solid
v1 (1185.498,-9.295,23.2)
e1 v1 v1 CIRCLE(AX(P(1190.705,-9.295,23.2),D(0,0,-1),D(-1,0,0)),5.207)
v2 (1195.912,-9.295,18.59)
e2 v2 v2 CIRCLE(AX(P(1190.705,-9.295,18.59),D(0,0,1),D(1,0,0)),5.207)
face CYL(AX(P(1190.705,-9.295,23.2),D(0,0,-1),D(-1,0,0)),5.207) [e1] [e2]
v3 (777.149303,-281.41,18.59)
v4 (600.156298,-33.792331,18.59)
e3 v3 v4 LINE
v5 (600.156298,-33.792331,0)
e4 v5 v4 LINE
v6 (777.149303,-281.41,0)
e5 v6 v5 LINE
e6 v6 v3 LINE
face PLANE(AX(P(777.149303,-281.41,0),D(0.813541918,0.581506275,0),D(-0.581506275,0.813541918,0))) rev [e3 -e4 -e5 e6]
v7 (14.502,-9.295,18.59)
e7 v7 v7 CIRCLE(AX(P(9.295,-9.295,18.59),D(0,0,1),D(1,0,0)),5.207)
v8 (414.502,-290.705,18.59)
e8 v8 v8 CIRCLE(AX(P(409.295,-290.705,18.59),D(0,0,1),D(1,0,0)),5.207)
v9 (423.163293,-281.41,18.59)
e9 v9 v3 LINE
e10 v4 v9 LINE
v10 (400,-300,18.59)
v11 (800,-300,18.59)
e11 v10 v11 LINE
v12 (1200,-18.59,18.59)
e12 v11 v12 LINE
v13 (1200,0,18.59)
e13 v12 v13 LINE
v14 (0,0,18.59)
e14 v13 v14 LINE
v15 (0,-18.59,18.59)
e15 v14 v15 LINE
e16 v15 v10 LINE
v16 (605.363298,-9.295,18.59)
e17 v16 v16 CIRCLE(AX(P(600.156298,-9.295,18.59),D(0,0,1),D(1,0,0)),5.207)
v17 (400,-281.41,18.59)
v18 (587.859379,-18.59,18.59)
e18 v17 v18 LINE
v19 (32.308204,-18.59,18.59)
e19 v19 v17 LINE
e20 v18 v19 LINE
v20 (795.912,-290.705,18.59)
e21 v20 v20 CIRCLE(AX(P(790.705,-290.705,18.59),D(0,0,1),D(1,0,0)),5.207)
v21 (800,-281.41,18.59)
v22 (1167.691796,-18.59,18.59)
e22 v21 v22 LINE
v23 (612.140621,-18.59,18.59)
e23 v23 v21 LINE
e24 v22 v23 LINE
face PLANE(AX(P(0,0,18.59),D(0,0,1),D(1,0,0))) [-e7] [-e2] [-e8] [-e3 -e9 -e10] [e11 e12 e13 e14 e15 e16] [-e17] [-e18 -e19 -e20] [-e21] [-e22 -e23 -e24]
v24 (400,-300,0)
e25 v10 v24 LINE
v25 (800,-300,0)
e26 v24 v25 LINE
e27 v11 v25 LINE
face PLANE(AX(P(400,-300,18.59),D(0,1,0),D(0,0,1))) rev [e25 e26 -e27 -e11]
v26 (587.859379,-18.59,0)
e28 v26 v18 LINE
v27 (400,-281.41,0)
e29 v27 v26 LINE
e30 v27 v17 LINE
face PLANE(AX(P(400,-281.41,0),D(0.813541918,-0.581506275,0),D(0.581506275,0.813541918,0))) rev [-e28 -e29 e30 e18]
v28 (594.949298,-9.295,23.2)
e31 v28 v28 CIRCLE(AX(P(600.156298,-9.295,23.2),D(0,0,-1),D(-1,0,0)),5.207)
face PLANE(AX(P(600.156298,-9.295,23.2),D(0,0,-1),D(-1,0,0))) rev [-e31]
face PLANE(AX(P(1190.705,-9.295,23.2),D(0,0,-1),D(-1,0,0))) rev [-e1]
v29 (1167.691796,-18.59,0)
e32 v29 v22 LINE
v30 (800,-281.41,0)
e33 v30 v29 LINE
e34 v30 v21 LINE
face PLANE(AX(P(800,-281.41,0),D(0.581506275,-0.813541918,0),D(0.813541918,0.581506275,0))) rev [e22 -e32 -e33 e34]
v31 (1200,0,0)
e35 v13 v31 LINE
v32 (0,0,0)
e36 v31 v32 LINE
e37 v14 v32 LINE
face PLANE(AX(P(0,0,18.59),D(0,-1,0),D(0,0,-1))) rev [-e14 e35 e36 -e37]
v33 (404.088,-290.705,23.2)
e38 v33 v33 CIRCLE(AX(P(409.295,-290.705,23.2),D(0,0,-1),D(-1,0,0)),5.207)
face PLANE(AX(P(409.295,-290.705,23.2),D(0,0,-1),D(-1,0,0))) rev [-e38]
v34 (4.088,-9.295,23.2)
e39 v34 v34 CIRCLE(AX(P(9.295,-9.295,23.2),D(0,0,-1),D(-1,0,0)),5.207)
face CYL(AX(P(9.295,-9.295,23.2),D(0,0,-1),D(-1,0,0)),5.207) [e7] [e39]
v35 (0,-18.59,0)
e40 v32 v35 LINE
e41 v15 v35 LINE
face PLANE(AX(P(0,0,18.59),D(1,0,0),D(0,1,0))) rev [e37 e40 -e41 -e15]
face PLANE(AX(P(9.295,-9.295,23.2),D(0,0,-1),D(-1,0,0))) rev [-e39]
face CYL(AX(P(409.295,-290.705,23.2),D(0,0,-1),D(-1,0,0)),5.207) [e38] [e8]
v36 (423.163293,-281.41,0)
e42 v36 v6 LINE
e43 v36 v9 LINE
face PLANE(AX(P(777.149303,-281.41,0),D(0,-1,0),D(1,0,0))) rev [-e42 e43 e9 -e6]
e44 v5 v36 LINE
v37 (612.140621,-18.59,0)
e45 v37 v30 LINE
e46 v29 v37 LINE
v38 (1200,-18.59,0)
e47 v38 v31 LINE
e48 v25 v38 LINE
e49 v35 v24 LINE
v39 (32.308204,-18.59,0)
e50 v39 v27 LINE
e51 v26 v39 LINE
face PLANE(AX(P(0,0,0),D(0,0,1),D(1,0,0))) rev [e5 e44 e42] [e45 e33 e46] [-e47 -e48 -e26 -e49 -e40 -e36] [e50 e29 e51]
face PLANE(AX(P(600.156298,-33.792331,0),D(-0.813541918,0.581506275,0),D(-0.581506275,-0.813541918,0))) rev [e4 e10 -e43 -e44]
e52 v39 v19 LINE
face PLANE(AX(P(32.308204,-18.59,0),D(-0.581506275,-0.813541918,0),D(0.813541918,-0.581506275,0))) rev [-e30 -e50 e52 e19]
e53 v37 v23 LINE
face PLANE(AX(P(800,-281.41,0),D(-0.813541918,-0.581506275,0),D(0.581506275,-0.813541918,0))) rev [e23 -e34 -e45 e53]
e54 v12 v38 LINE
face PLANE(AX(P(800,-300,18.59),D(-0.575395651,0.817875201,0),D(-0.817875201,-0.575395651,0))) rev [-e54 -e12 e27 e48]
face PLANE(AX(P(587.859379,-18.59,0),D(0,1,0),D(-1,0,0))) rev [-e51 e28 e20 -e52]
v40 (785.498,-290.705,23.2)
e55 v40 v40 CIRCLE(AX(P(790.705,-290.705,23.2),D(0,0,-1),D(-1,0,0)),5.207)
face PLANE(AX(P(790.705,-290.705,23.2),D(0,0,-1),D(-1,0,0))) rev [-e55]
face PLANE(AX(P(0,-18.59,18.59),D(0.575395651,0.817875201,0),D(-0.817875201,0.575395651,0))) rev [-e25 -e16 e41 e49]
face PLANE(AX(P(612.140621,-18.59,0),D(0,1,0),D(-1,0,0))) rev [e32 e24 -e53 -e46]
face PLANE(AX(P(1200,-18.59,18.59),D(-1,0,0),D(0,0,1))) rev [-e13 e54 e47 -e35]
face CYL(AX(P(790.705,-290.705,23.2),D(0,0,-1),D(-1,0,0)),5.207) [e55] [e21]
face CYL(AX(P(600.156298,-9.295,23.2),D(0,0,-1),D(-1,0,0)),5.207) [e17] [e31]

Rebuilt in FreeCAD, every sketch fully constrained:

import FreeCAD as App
import Part
import Sketcher
from FreeCAD import Vector
Q = App.Units.Quantity

doc = App.newDocument("Part")
body = doc.addObject("PartDesign::Body", "Body")

sketch1 = body.newObject("Sketcher::SketchObject", "Sketch")
sketch1.AttachmentSupport = (doc.getObject("XY_Plane"), [""])
sketch1.MapMode = "FlatFace"
sketch1.addGeometry([
    Part.LineSegment(Vector(1200, 0, 0), Vector(0, 0, 0)),
    Part.LineSegment(Vector(0, 0, 0), Vector(0, -19, 0)),
    Part.LineSegment(Vector(0, -19, 0), Vector(400, -300, 0)),
    Part.LineSegment(Vector(400, -300, 0), Vector(800, -300, 0)),
    Part.LineSegment(Vector(800, -300, 0), Vector(1200, -19, 0)),
    Part.LineSegment(Vector(1200, -19, 0), Vector(1200, 0, 0)),
], False)
sketch1.addConstraint([
    Sketcher.Constraint("Coincident", 0, 2, 1, 1),
    Sketcher.Constraint("Coincident", 1, 2, 2, 1),
    Sketcher.Constraint("Coincident", 2, 2, 3, 1),
    Sketcher.Constraint("Coincident", 3, 2, 4, 1),
    Sketcher.Constraint("Coincident", 4, 2, 5, 1),
    Sketcher.Constraint("Coincident", 5, 2, 0, 1),
    Sketcher.Constraint("Horizontal", 0),
    Sketcher.Constraint("Vertical", 1),
    Sketcher.Constraint("Horizontal", 3),
    Sketcher.Constraint("Vertical", 5),
    Sketcher.Constraint("Coincident", 0, 2, -1, 1),
    Sketcher.Constraint("Horizontal", 1, 2, 4, 2),
    Sketcher.Constraint("Equal", 2, 4),
    Sketcher.Constraint("DistanceX", 0, 2, 0, 1, Q("1200 mm")),
    Sketcher.Constraint("DistanceX", 3, 1, 3, 2, Q("400 mm")),
    Sketcher.Constraint("DistanceY", 2, 2, -1, 1, Q("300 mm")),
    Sketcher.Constraint("DistanceY", 1, 2, 1, 1, Q("18.59 mm")),
])
pad1 = body.newObject("PartDesign::Pad", "Pad")
pad1.Profile = sketch1
pad1.Length = 18.59

sketch2 = body.newObject("Sketcher::SketchObject", "Sketch001")
sketch2.AttachmentSupport = (doc.getObject("XY_Plane"), [""])
sketch2.MapMode = "FlatFace"
sketch2.AttachmentOffset = App.Placement(Vector(0, 0, 18.59), App.Rotation())
sketch2.addGeometry([
    Part.LineSegment(Vector(32, -19, 0), Vector(400, -281, 0)),
    Part.LineSegment(Vector(400, -281, 0), Vector(588, -19, 0)),
    Part.LineSegment(Vector(588, -19, 0), Vector(32, -19, 0)),
    Part.LineSegment(Vector(600, -34, 0), Vector(423, -281, 0)),
    Part.LineSegment(Vector(423, -281, 0), Vector(777, -281, 0)),
    Part.LineSegment(Vector(777, -281, 0), Vector(600, -34, 0)),
    Part.LineSegment(Vector(800, -281, 0), Vector(1168, -19, 0)),
    Part.LineSegment(Vector(1168, -19, 0), Vector(612, -19, 0)),
    Part.LineSegment(Vector(612, -19, 0), Vector(800, -281, 0)),
], False)
sketch2.addConstraint([
    Sketcher.Constraint("Coincident", 0, 2, 1, 1),
    Sketcher.Constraint("Coincident", 1, 2, 2, 1),
    Sketcher.Constraint("Coincident", 2, 2, 0, 1),
    Sketcher.Constraint("Coincident", 3, 2, 4, 1),
    Sketcher.Constraint("Coincident", 4, 2, 5, 1),
    Sketcher.Constraint("Coincident", 5, 2, 3, 1),
    Sketcher.Constraint("Coincident", 6, 2, 7, 1),
    Sketcher.Constraint("Coincident", 7, 2, 8, 1),
    Sketcher.Constraint("Coincident", 8, 2, 6, 1),
    Sketcher.Constraint("Horizontal", 2),
    Sketcher.Constraint("Horizontal", 4),
    Sketcher.Constraint("Horizontal", 7),
    Sketcher.Constraint("Perpendicular", 0, 1),
    Sketcher.Constraint("Parallel", 1, 3),
    Sketcher.Constraint("Perpendicular", 5, 6),
    Sketcher.Constraint("Perpendicular", 6, 8),
    Sketcher.Constraint("Horizontal", 0, 2, 3, 2),
    Sketcher.Constraint("Horizontal", 2, 2, 6, 2),
    Sketcher.Constraint("Horizontal", 4, 2, 8, 2),
    Sketcher.Constraint("Equal", 2, 7),
    Sketcher.Constraint("DistanceX", -1, 1, 0, 2, Q("400 mm")),
    Sketcher.Constraint("DistanceX", -1, 1, 8, 2, Q("800 mm")),
    Sketcher.Constraint("DistanceY", 0, 2, -1, 1, Q("281.41 mm")),
    Sketcher.Constraint("DistanceY", 1, 2, -1, 1, Q("18.59 mm")),
    Sketcher.Constraint("DistanceX", 4, 1, 4, 2, Q("353.986009 mm")),
    Sketcher.Constraint("DistanceX", -1, 1, 5, 2, Q("600.156298 mm")),
    Sketcher.Constraint("DistanceX", 2, 2, 4, 2, Q("744.841099 mm")),
])
pocket1 = body.newObject("PartDesign::Pocket", "Pocket")
pocket1.Profile = sketch2
pocket1.Type = "ThroughAll"

sketch3 = body.newObject("Sketcher::SketchObject", "Sketch002")
sketch3.AttachmentSupport = (doc.getObject("XY_Plane"), [""])
sketch3.MapMode = "FlatFace"
sketch3.addGeometry([
    Part.Circle(Vector(1191, -9, 0), Vector(0, 0, 1), 5),
    Part.Circle(Vector(600, -9, 0), Vector(0, 0, 1), 5),
    Part.Circle(Vector(9, -9, 0), Vector(0, 0, 1), 5),
    Part.Circle(Vector(791, -291, 0), Vector(0, 0, 1), 5),
    Part.Circle(Vector(409, -291, 0), Vector(0, 0, 1), 5),
], False)
sketch3.addConstraint([
    Sketcher.Constraint("Equal", 0, 1),
    Sketcher.Constraint("Equal", 1, 2),
    Sketcher.Constraint("Equal", 2, 3),
    Sketcher.Constraint("Equal", 3, 4),
    Sketcher.Constraint("Horizontal", 0, 3, 1, 3),
    Sketcher.Constraint("Horizontal", 1, 3, 2, 3),
    Sketcher.Constraint("Horizontal", 3, 3, 4, 3),
    Sketcher.Constraint("Diameter", 0, Q("10.414 mm")),
    Sketcher.Constraint("DistanceX", 3, 3, 0, 3, Q("400 mm")),
    Sketcher.Constraint("DistanceX", 2, 3, 4, 3, Q("400 mm")),
    Sketcher.Constraint("DistanceX", 2, 3, 0, 3, Q("1181.41 mm")),
    Sketcher.Constraint("DistanceY", 3, 3, 1, 3, Q("281.41 mm")),
    Sketcher.Constraint("DistanceX", -1, 1, 0, 3, Q("1190.705 mm")),
    Sketcher.Constraint("DistanceY", 0, 3, -1, 1, Q("9.295 mm")),
    Sketcher.Constraint("DistanceX", -1, 1, 1, 3, Q("600.156298 mm")),
])
pad2 = body.newObject("PartDesign::Pad", "Pad001")
pad2.Profile = sketch3
pad2.Length = 23.2

doc.recompute()
